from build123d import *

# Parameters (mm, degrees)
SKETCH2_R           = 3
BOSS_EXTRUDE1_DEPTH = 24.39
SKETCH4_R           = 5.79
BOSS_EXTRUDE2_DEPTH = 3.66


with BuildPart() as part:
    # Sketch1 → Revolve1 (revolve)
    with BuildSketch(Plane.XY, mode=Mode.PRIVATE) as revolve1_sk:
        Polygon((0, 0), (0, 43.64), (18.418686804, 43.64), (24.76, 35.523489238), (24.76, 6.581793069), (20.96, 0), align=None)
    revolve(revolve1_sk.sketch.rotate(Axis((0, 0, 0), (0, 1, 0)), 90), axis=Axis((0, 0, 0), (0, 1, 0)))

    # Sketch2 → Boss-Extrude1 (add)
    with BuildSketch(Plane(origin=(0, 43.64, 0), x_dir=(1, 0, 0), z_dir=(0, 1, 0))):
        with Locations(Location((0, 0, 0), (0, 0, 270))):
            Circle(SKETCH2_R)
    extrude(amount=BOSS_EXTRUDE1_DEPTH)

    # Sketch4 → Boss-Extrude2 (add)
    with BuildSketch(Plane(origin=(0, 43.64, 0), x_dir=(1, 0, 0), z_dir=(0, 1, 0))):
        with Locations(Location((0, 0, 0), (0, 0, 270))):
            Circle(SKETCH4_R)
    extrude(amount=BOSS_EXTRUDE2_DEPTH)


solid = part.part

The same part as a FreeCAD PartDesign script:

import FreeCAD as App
import Part
import Sketcher
Q = App.Units.Quantity


def add_polygon(sketch, points):
    """Adds a closed chain of lines whose ends are joined by coincident constraints."""
    first, n = sketch.GeometryCount, len(points)
    for a, b in zip(points, points[1:] + points[:1]):
        sketch.addGeometry(Part.LineSegment(App.Vector(*a, 0), App.Vector(*b, 0)), False)
    for i in range(n):
        sketch.addConstraint(Sketcher.Constraint("Coincident", first + i, 2, first + (i + 1) % n, 1))

doc = App.newDocument("Part")
body = doc.addObject("PartDesign::Body", "Body")

sketch1 = doc.addObject("Sketcher::SketchObject", "Sketch")
body.addObject(sketch1)
sketch1.AttachmentSupport = (doc.XY_Plane, [""])
sketch1.MapMode = "FlatFace"
add_polygon(sketch1, [(0, 44), (0, 0), (21, 0), (25, 7), (25, 36), (18, 44)])
sketch1.addConstraint(Sketcher.Constraint("Vertical", 0))
sketch1.addConstraint(Sketcher.Constraint("Horizontal", 1))
sketch1.addConstraint(Sketcher.Constraint("Vertical", 3))
sketch1.addConstraint(Sketcher.Constraint("Horizontal", 5))
sketch1.addConstraint(Sketcher.Constraint("Coincident", 0, 2, -1, 1))
sketch1.addConstraint(Sketcher.Constraint("Angle", 2, Q("60 deg")))
sketch1.addConstraint(Sketcher.Constraint("Angle", 4, Q("128 deg")))
sketch1.addConstraint(Sketcher.Constraint("Distance", 2, 7.6))
sketch1.addConstraint(Sketcher.Constraint("Distance", 4, 10.3))
sketch1.addConstraint(Sketcher.Constraint("DistanceX", 1, 1, 1, 2, 20.96))
sketch1.addConstraint(Sketcher.Constraint("DistanceY", 0, 2, 0, 1, 43.64))
revolution = doc.addObject("PartDesign::Revolution", "Revolution")
body.addObject(revolution)
revolution.Profile = sketch1
revolution.ReferenceAxis = (sketch1, ["V_Axis"])
revolution.Angle = 360

sketch2 = doc.addObject("Sketcher::SketchObject", "Sketch001")
body.addObject(sketch2)
sketch2.AttachmentSupport = (doc.XZ_Plane, [""])
sketch2.MapMode = "FlatFace"
sketch2.AttachmentOffset = App.Placement(App.Vector(0, 0, -43.64), App.Rotation())
sketch2.addGeometry(Part.Circle(App.Vector(0, 0, 0), App.Vector(0, 0, 1), 3), False)
sketch2.addConstraint(Sketcher.Constraint("Coincident", 0, 3, -1, 1))
sketch2.addConstraint(Sketcher.Constraint("Diameter", 0, 6.0))
pad1 = doc.addObject("PartDesign::Pad", "Pad")
body.addObject(pad1)
pad1.Profile = sketch2
pad1.Length = 24.39
pad1.Reversed = True

sketch3 = doc.addObject("Sketcher::SketchObject", "Sketch002")
body.addObject(sketch3)
sketch3.AttachmentSupport = (doc.XZ_Plane, [""])
sketch3.MapMode = "FlatFace"
sketch3.AttachmentOffset = App.Placement(App.Vector(0, 0, -43.64), App.Rotation())
sketch3.addGeometry(Part.Circle(App.Vector(0, 0, 0), App.Vector(0, 0, 1), 6), False)
sketch3.addConstraint(Sketcher.Constraint("Coincident", 0, 3, -1, 1))
sketch3.addConstraint(Sketcher.Constraint("Diameter", 0, 11.58))
pad2 = doc.addObject("PartDesign::Pad", "Pad001")
body.addObject(pad2)
pad2.Profile = sketch3
pad2.Length = 3.66
pad2.Reversed = True

doc.recompute()
